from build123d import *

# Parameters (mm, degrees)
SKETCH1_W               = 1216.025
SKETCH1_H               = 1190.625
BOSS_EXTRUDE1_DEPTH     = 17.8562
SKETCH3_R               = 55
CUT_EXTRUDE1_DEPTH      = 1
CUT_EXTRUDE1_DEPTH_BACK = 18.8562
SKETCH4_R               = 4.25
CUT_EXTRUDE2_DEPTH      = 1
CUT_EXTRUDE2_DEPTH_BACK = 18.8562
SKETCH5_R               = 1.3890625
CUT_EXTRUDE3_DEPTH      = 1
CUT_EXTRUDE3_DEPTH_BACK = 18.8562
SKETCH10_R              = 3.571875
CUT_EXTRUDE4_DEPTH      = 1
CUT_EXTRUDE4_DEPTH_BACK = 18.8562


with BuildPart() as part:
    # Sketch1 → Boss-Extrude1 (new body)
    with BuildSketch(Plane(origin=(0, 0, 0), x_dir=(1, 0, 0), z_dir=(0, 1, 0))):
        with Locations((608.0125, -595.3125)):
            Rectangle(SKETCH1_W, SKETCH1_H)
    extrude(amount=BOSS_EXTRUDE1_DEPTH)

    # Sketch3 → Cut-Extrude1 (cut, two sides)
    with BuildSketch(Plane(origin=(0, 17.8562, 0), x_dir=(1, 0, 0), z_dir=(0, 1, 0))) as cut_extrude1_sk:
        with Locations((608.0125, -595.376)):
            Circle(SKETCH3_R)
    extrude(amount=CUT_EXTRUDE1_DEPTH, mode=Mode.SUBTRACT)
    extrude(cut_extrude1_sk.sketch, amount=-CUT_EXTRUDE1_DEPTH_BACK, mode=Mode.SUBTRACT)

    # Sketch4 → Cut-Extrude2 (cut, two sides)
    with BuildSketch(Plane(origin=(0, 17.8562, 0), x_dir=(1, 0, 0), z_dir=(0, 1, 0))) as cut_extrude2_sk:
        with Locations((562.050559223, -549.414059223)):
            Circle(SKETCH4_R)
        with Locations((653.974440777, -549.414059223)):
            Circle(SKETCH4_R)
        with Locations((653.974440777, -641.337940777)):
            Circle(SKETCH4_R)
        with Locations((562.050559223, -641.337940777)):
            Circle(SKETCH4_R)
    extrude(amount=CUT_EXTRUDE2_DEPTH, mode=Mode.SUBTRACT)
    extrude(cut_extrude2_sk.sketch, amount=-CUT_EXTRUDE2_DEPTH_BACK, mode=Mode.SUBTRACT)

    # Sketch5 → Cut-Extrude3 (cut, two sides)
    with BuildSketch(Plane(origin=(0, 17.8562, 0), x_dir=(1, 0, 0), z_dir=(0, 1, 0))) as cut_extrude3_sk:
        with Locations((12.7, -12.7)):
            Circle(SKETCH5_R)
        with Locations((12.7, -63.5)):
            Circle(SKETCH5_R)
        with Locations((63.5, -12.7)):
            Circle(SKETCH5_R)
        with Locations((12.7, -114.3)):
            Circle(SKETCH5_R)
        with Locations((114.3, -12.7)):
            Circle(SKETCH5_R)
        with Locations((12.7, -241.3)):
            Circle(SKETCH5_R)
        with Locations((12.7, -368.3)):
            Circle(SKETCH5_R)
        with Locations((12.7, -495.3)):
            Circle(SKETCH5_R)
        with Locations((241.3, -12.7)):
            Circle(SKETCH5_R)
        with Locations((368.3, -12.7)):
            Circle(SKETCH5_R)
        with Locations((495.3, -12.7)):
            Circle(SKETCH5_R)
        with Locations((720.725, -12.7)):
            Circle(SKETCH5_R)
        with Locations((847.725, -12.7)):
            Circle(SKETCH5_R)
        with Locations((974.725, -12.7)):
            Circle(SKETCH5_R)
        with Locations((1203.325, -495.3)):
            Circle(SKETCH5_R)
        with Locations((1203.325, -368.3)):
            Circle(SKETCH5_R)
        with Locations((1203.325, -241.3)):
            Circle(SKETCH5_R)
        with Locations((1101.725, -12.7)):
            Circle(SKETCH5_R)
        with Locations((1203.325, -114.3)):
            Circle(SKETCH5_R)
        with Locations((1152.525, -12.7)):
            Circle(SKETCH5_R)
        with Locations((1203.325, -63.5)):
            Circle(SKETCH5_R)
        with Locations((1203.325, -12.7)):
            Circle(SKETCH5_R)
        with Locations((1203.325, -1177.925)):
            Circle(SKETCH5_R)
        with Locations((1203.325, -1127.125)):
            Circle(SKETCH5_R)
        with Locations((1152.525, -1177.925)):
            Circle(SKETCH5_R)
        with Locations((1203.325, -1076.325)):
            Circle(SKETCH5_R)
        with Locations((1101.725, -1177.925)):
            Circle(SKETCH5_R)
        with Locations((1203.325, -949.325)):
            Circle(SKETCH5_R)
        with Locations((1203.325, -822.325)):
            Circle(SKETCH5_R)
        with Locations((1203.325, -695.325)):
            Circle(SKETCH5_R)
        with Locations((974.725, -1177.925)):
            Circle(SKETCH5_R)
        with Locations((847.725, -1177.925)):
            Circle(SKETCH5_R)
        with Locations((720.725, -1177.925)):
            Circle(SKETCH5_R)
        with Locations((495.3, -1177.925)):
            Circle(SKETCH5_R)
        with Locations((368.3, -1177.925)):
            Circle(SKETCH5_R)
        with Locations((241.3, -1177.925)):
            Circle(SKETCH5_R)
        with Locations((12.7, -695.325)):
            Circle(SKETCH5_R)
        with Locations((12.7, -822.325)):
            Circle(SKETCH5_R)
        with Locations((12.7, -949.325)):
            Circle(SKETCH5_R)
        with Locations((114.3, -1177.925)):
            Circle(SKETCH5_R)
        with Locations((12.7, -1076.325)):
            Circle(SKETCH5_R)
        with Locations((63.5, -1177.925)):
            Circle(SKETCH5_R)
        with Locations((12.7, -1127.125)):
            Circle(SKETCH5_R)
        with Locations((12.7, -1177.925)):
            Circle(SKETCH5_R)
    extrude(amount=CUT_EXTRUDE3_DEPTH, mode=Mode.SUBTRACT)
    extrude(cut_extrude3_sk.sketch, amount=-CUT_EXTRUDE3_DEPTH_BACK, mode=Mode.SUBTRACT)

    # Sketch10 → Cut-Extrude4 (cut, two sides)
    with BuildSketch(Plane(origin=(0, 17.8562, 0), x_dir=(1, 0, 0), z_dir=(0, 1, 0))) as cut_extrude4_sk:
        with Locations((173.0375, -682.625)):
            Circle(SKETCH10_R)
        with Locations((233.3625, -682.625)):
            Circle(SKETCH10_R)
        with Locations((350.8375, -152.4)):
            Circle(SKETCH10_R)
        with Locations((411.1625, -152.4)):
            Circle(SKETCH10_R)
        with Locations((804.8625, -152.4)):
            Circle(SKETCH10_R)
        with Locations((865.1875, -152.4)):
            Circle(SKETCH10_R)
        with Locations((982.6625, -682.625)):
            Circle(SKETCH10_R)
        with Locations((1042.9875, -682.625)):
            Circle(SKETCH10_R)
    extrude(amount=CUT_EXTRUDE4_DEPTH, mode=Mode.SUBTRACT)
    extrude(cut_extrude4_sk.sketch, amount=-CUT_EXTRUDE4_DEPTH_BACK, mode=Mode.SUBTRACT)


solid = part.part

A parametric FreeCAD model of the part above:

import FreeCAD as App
import Part
import Sketcher
Q = App.Units.Quantity

doc = App.newDocument("Part")
body = doc.addObject("PartDesign::Body", "Body")

sketch1 = body.newObject("Sketcher::SketchObject", "Sketch")
sketch1.AttachmentSupport = (doc.getObject("XZ_Plane"), [""])
sketch1.MapMode = "FlatFace"
sketch1.addGeometry([
    Part.LineSegment(App.Vector(0, 0, 0), App.Vector(0, 1191, 0)),
    Part.LineSegment(App.Vector(0, 1191, 0), App.Vector(1216, 1191, 0)),
    Part.LineSegment(App.Vector(1216, 1191, 0), App.Vector(1216, 0, 0)),
    Part.LineSegment(App.Vector(1216, 0, 0), App.Vector(0, 0, 0)),
], False)
sketch1.addConstraint([
    Sketcher.Constraint("Coincident", 0, 2, 1, 1),
    Sketcher.Constraint("Coincident", 1, 2, 2, 1),
    Sketcher.Constraint("Coincident", 2, 2, 3, 1),
    Sketcher.Constraint("Coincident", 3, 2, 0, 1),
    Sketcher.Constraint("Vertical", 0),
    Sketcher.Constraint("Horizontal", 1),
    Sketcher.Constraint("Vertical", 2),
    Sketcher.Constraint("Horizontal", 3),
    Sketcher.Constraint("Coincident", 3, 2, -1, 1),
    Sketcher.Constraint("DistanceX", 1, 1, 1, 2, Q("47.875 in")),
    Sketcher.Constraint("DistanceY", 0, 1, 0, 2, Q("46.875 in")),
])
pad1 = body.newObject("PartDesign::Pad", "Pad")
pad1.Profile = sketch1
pad1.Length = Q("0.703 in")
pad1.Reversed = True

sketch2 = body.newObject("Sketcher::SketchObject", "Sketch001")
sketch2.AttachmentSupport = (doc.getObject("XZ_Plane"), [""])
sketch2.MapMode = "FlatFace"
sketch2.AttachmentOffset = App.Placement(App.Vector(0, 0, -0.703 * 25.4), App.Rotation())
sketch2.addGeometry(Part.Circle(App.Vector(608, 595, 0), App.Vector(0, 0, 1), 55), False)
sketch2.addConstraint([
    Sketcher.Constraint("Diameter", 0, 110.0),
    Sketcher.Constraint("DistanceY", -1, 1, 0, 3, Q("23.44 in")),
    Sketcher.Constraint("DistanceX", -1, 1, 0, 3, Q("23.9375 in")),
])
pocket1 = body.newObject("PartDesign::Pocket", "Pocket")
pocket1.Profile = sketch2
pocket1.Type = "ThroughAll"
pocket1.Midplane = True

sketch3 = body.newObject("Sketcher::SketchObject", "Sketch002")
sketch3.AttachmentSupport = (doc.getObject("XZ_Plane"), [""])
sketch3.MapMode = "FlatFace"
sketch3.AttachmentOffset = App.Placement(App.Vector(0, 0, -0.703 * 25.4), App.Rotation())
sketch3.addGeometry([
    Part.Circle(App.Vector(562.1, 549.4, 0), App.Vector(0, 0, 1), 4.2),
    Part.Circle(App.Vector(654, 549.4, 0), App.Vector(0, 0, 1), 4.2),
    Part.Circle(App.Vector(654, 641.3, 0), App.Vector(0, 0, 1), 4.2),
    Part.Circle(App.Vector(562.1, 641.3, 0), App.Vector(0, 0, 1), 4.2),
], False)
sketch3.addConstraint([
    Sketcher.Constraint("Equal", 0, 1),
    Sketcher.Constraint("Equal", 1, 2),
    Sketcher.Constraint("Equal", 2, 3),
    Sketcher.Constraint("Horizontal", 0, 3, 1, 3),
    Sketcher.Constraint("Horizontal", 2, 3, 3, 3),
    Sketcher.Constraint("Vertical", 1, 3, 2, 3),
    Sketcher.Constraint("Vertical", 0, 3, 3, 3),
    Sketcher.Constraint("Diameter", 0, 8.5),
    Sketcher.Constraint("DistanceX", -1, 1, 0, 3, 562.050559),
    Sketcher.Constraint("DistanceY", -1, 1, 0, 3, 549.414059),
    Sketcher.Constraint("DistanceX", -1, 1, 1, 3, 653.974441),
    Sketcher.Constraint("DistanceY", -1, 1, 2, 3, 641.337941),
])
pocket2 = body.newObject("PartDesign::Pocket", "Pocket001")
pocket2.Profile = sketch3
pocket2.Type = "ThroughAll"
pocket2.Midplane = True

sketch4 = body.newObject("Sketcher::SketchObject", "Sketch003")
sketch4.AttachmentSupport = (doc.getObject("XZ_Plane"), [""])
sketch4.MapMode = "FlatFace"
sketch4.AttachmentOffset = App.Placement(App.Vector(0, 0, -0.703 * 25.4), App.Rotation())
sketch4.addGeometry([
    Part.Circle(App.Vector(12.7, 12.7, 0), App.Vector(0, 0, 1), 1.4),
    Part.Circle(App.Vector(12.7, 63.5, 0), App.Vector(0, 0, 1), 1.4),
    Part.Circle(App.Vector(63.5, 12.7, 0), App.Vector(0, 0, 1), 1.4),
    Part.Circle(App.Vector(12.7, 114.3, 0), App.Vector(0, 0, 1), 1.4),
    Part.Circle(App.Vector(114.3, 12.7, 0), App.Vector(0, 0, 1), 1.4),
    Part.Circle(App.Vector(12.7, 241.3, 0), App.Vector(0, 0, 1), 1.4),
    Part.Circle(App.Vector(12.7, 368.3, 0), App.Vector(0, 0, 1), 1.4),
    Part.Circle(App.Vector(12.7, 495.3, 0), App.Vector(0, 0, 1), 1.4),
    Part.Circle(App.Vector(241.3, 12.7, 0), App.Vector(0, 0, 1), 1.4),
    Part.Circle(App.Vector(368.3, 12.7, 0), App.Vector(0, 0, 1), 1.4),
    Part.Circle(App.Vector(495.3, 12.7, 0), App.Vector(0, 0, 1), 1.4),
    Part.Circle(App.Vector(720.7, 12.7, 0), App.Vector(0, 0, 1), 1.4),
    Part.Circle(App.Vector(847.7, 12.7, 0), App.Vector(0, 0, 1), 1.4),
    Part.Circle(App.Vector(974.7, 12.7, 0), App.Vector(0, 0, 1), 1.4),
    Part.Circle(App.Vector(1203.3, 495.3, 0), App.Vector(0, 0, 1), 1.4),
    Part.Circle(App.Vector(1203.3, 368.3, 0), App.Vector(0, 0, 1), 1.4),
    Part.Circle(App.Vector(1203.3, 241.3, 0), App.Vector(0, 0, 1), 1.4),
    Part.Circle(App.Vector(1101.7, 12.7, 0), App.Vector(0, 0, 1), 1.4),
    Part.Circle(App.Vector(1203.3, 114.3, 0), App.Vector(0, 0, 1), 1.4),
    Part.Circle(App.Vector(1152.5, 12.7, 0), App.Vector(0, 0, 1), 1.4),
    Part.Circle(App.Vector(1203.3, 63.5, 0), App.Vector(0, 0, 1), 1.4),
    Part.Circle(App.Vector(1203.3, 12.7, 0), App.Vector(0, 0, 1), 1.4),
    Part.Circle(App.Vector(1203.3, 1177.9, 0), App.Vector(0, 0, 1), 1.4),
    Part.Circle(App.Vector(1203.3, 1127.1, 0), App.Vector(0, 0, 1), 1.4),
    Part.Circle(App.Vector(1152.5, 1177.9, 0), App.Vector(0, 0, 1), 1.4),
    Part.Circle(App.Vector(1203.3, 1076.3, 0), App.Vector(0, 0, 1), 1.4),
    Part.Circle(App.Vector(1101.7, 1177.9, 0), App.Vector(0, 0, 1), 1.4),
    Part.Circle(App.Vector(1203.3, 949.3, 0), App.Vector(0, 0, 1), 1.4),
    Part.Circle(App.Vector(1203.3, 822.3, 0), App.Vector(0, 0, 1), 1.4),
    Part.Circle(App.Vector(1203.3, 695.3, 0), App.Vector(0, 0, 1), 1.4),
    Part.Circle(App.Vector(974.7, 1177.9, 0), App.Vector(0, 0, 1), 1.4),
    Part.Circle(App.Vector(847.7, 1177.9, 0), App.Vector(0, 0, 1), 1.4),
    Part.Circle(App.Vector(720.7, 1177.9, 0), App.Vector(0, 0, 1), 1.4),
    Part.Circle(App.Vector(495.3, 1177.9, 0), App.Vector(0, 0, 1), 1.4),
    Part.Circle(App.Vector(368.3, 1177.9, 0), App.Vector(0, 0, 1), 1.4),
    Part.Circle(App.Vector(241.3, 1177.9, 0), App.Vector(0, 0, 1), 1.4),
    Part.Circle(App.Vector(12.7, 695.3, 0), App.Vector(0, 0, 1), 1.4),
    Part.Circle(App.Vector(12.7, 822.3, 0), App.Vector(0, 0, 1), 1.4),
    Part.Circle(App.Vector(12.7, 949.3, 0), App.Vector(0, 0, 1), 1.4),
    Part.Circle(App.Vector(114.3, 1177.9, 0), App.Vector(0, 0, 1), 1.4),
    Part.Circle(App.Vector(12.7, 1076.3, 0), App.Vector(0, 0, 1), 1.4),
    Part.Circle(App.Vector(63.5, 1177.9, 0), App.Vector(0, 0, 1), 1.4),
    Part.Circle(App.Vector(12.7, 1127.1, 0), App.Vector(0, 0, 1), 1.4),
    Part.Circle(App.Vector(12.7, 1177.9, 0), App.Vector(0, 0, 1), 1.4),
], False)
sketch4.addConstraint([
    Sketcher.Constraint("Equal", 0, 1),
    Sketcher.Constraint("Equal", 1, 2),
    Sketcher.Constraint("Equal", 2, 3),
    Sketcher.Constraint("Equal", 3, 4),
    Sketcher.Constraint("Equal", 4, 5),
    Sketcher.Constraint("Equal", 5, 6),
    Sketcher.Constraint("Equal", 6, 7),
    Sketcher.Constraint("Equal", 7, 8),
    Sketcher.Constraint("Equal", 8, 9),
    Sketcher.Constraint("Equal", 9, 10),
    Sketcher.Constraint("Equal", 10, 11),
    Sketcher.Constraint("Equal", 11, 12),
    Sketcher.Constraint("Equal", 12, 13),
    Sketcher.Constraint("Equal", 13, 14),
    Sketcher.Constraint("Equal", 14, 15),
    Sketcher.Constraint("Equal", 15, 16),
    Sketcher.Constraint("Equal", 16, 17),
    Sketcher.Constraint("Equal", 17, 18),
    Sketcher.Constraint("Equal", 18, 19),
    Sketcher.Constraint("Equal", 19, 20),
    Sketcher.Constraint("Equal", 20, 21),
    Sketcher.Constraint("Equal", 21, 22),
    Sketcher.Constraint("Equal", 22, 23),
    Sketcher.Constraint("Equal", 23, 24),
    Sketcher.Constraint("Equal", 24, 25),
    Sketcher.Constraint("Equal", 25, 26),
    Sketcher.Constraint("Equal", 26, 27),
    Sketcher.Constraint("Equal", 27, 28),
    Sketcher.Constraint("Equal", 28, 29),
    Sketcher.Constraint("Equal", 29, 30),
    Sketcher.Constraint("Equal", 30, 31),
    Sketcher.Constraint("Equal", 31, 32),
    Sketcher.Constraint("Equal", 32, 33),
    Sketcher.Constraint("Equal", 33, 34),
    Sketcher.Constraint("Equal", 34, 35),
    Sketcher.Constraint("Equal", 35, 36),
    Sketcher.Constraint("Equal", 36, 37),
    Sketcher.Constraint("Equal", 37, 38),
    Sketcher.Constraint("Equal", 38, 39),
    Sketcher.Constraint("Equal", 39, 40),
    Sketcher.Constraint("Equal", 40, 41),
    Sketcher.Constraint("Equal", 41, 42),
    Sketcher.Constraint("Equal", 42, 43),
    Sketcher.Constraint("Horizontal", 0, 3, 2, 3),
    Sketcher.Constraint("Horizontal", 2, 3, 4, 3),
    Sketcher.Constraint("Horizontal", 4, 3, 8, 3),
    Sketcher.Constraint("Horizontal", 8, 3, 9, 3),
    Sketcher.Constraint("Horizontal", 9, 3, 10, 3),
    Sketcher.Constraint("Horizontal", 10, 3, 11, 3),
    Sketcher.Constraint("Horizontal", 11, 3, 12, 3),
    Sketcher.Constraint("Horizontal", 12, 3, 13, 3),
    Sketcher.Constraint("Horizontal", 7, 3, 14, 3),
    Sketcher.Constraint("Horizontal", 6, 3, 15, 3),
    Sketcher.Constraint("Horizontal", 5, 3, 16, 3),
    Sketcher.Constraint("Horizontal", 13, 3, 17, 3),
    Sketcher.Constraint("Horizontal", 3, 3, 18, 3),
    Sketcher.Constraint("Horizontal", 17, 3, 19, 3),
    Sketcher.Constraint("Horizontal", 1, 3, 20, 3),
    Sketcher.Constraint("Horizontal", 19, 3, 21, 3),
    Sketcher.Constraint("Horizontal", 22, 3, 24, 3),
    Sketcher.Constraint("Horizontal", 24, 3, 26, 3),
    Sketcher.Constraint("Horizontal", 26, 3, 30, 3),
    Sketcher.Constraint("Horizontal", 30, 3, 31, 3),
    Sketcher.Constraint("Horizontal", 31, 3, 32, 3),
    Sketcher.Constraint("Horizontal", 32, 3, 33, 3),
    Sketcher.Constraint("Horizontal", 33, 3, 34, 3),
    Sketcher.Constraint("Horizontal", 34, 3, 35, 3),
    Sketcher.Constraint("Horizontal", 29, 3, 36, 3),
    Sketcher.Constraint("Horizontal", 28, 3, 37, 3),
    Sketcher.Constraint("Horizontal", 27, 3, 38, 3),
    Sketcher.Constraint("Horizontal", 35, 3, 39, 3),
    Sketcher.Constraint("Horizontal", 25, 3, 40, 3),
    Sketcher.Constraint("Horizontal", 39, 3, 41, 3),
    Sketcher.Constraint("Horizontal", 23, 3, 42, 3),
    Sketcher.Constraint("Horizontal", 41, 3, 43, 3),
    Sketcher.Constraint("Vertical", 0, 3, 1, 3),
    Sketcher.Constraint("Vertical", 1, 3, 3, 3),
    Sketcher.Constraint("Vertical", 3, 3, 5, 3),
    Sketcher.Constraint("Vertical", 5, 3, 6, 3),
    Sketcher.Constraint("Vertical", 6, 3, 7, 3),
    Sketcher.Constraint("Vertical", 14, 3, 15, 3),
    Sketcher.Constraint("Vertical", 15, 3, 16, 3),
    Sketcher.Constraint("Vertical", 16, 3, 18, 3),
    Sketcher.Constraint("Vertical", 18, 3, 20, 3),
    Sketcher.Constraint("Vertical", 20, 3, 21, 3),
    Sketcher.Constraint("Vertical", 21, 3, 22, 3),
    Sketcher.Constraint("Vertical", 22, 3, 23, 3),
    Sketcher.Constraint("Vertical", 19, 3, 24, 3),
    Sketcher.Constraint("Vertical", 23, 3, 25, 3),
    Sketcher.Constraint("Vertical", 17, 3, 26, 3),
    Sketcher.Constraint("Vertical", 25, 3, 27, 3),
    Sketcher.Constraint("Vertical", 27, 3, 28, 3),
    Sketcher.Constraint("Vertical", 28, 3, 29, 3),
    Sketcher.Constraint("Vertical", 13, 3, 30, 3),
    Sketcher.Constraint("Vertical", 12, 3, 31, 3),
    Sketcher.Constraint("Vertical", 11, 3, 32, 3),
    Sketcher.Constraint("Vertical", 10, 3, 33, 3),
    Sketcher.Constraint("Vertical", 9, 3, 34, 3),
    Sketcher.Constraint("Vertical", 8, 3, 35, 3),
    Sketcher.Constraint("Vertical", 7, 3, 36, 3),
    Sketcher.Constraint("Vertical", 36, 3, 37, 3),
    Sketcher.Constraint("Vertical", 37, 3, 38, 3),
    Sketcher.Constraint("Vertical", 4, 3, 39, 3),
    Sketcher.Constraint("Vertical", 38, 3, 40, 3),
    Sketcher.Constraint("Vertical", 2, 3, 41, 3),
    Sketcher.Constraint("Vertical", 40, 3, 42, 3),
    Sketcher.Constraint("Vertical", 42, 3, 43, 3),
    Sketcher.Constraint("Diameter", 0, Q("0.109375 in")),
    Sketcher.Constraint("DistanceY", 0, 3, 1, 3, Q("2 in")),
    Sketcher.Constraint("DistanceX", 0, 3, 2, 3, Q("2 in")),
    Sketcher.Constraint("DistanceY", 1, 3, 3, 3, Q("2 in")),
    Sketcher.Constraint("DistanceX", 2, 3, 4, 3, Q("2 in")),
    Sketcher.Constraint("DistanceY", 3, 3, 5, 3, Q("5 in")),
    Sketcher.Constraint("DistanceY", 5, 3, 6, 3, Q("5 in")),
    Sketcher.Constraint("DistanceY", 6, 3, 7, 3, Q("5 in")),
    Sketcher.Constraint("DistanceX", 4, 3, 8, 3, Q("5 in")),
    Sketcher.Constraint("DistanceX", 8, 3, 9, 3, Q("5 in")),
    Sketcher.Constraint("DistanceX", 9, 3, 10, 3, Q("5 in")),
    Sketcher.Constraint("DistanceX", 11, 3, 12, 3, Q("5 in")),
    Sketcher.Constraint("DistanceX", 12, 3, 13, 3, Q("5 in")),
    Sketcher.Constraint("DistanceX", 13, 3, 14, 3, Q("9 in")),
    Sketcher.Constraint("DistanceX", 13, 3, 17, 3, Q("5 in")),
    Sketcher.Constraint("DistanceX", 17, 3, 19, 3, Q("2 in")),
    Sketcher.Constraint("DistanceY", 23, 3, 22, 3, Q("2 in")),
    Sketcher.Constraint("DistanceY", 25, 3, 23, 3, Q("2 in")),
    Sketcher.Constraint("DistanceY", 27, 3, 25, 3, Q("5 in")),
    Sketcher.Constraint("DistanceY", 28, 3, 27, 3, Q("5 in")),
    Sketcher.Constraint("DistanceY", 29, 3, 28, 3, Q("5 in")),
    Sketcher.Constraint("DistanceX", -1, 1, 0, 3, Q("0.5 in")),
    Sketcher.Constraint("DistanceY", -1, 1, 0, 3, Q("0.5 in")),
    Sketcher.Constraint("DistanceX", -1, 1, 11, 3, Q("28.375 in")),
    Sketcher.Constraint("DistanceY", -1, 1, 22, 3, Q("46.375 in")),
])
pocket3 = body.newObject("PartDesign::Pocket", "Pocket002")
pocket3.Profile = sketch4
pocket3.Type = "ThroughAll"
pocket3.Midplane = True

sketch5 = body.newObject("Sketcher::SketchObject", "Sketch004")
sketch5.AttachmentSupport = (doc.getObject("XZ_Plane"), [""])
sketch5.MapMode = "FlatFace"
sketch5.AttachmentOffset = App.Placement(App.Vector(0, 0, -0.703 * 25.4), App.Rotation())
sketch5.addGeometry([
    Part.Circle(App.Vector(173, 682.6, 0), App.Vector(0, 0, 1), 3.6),
    Part.Circle(App.Vector(233.4, 682.6, 0), App.Vector(0, 0, 1), 3.6),
    Part.Circle(App.Vector(350.8, 152.4, 0), App.Vector(0, 0, 1), 3.6),
    Part.Circle(App.Vector(411.2, 152.4, 0), App.Vector(0, 0, 1), 3.6),
    Part.Circle(App.Vector(804.9, 152.4, 0), App.Vector(0, 0, 1), 3.6),
    Part.Circle(App.Vector(865.2, 152.4, 0), App.Vector(0, 0, 1), 3.6),
    Part.Circle(App.Vector(982.7, 682.6, 0), App.Vector(0, 0, 1), 3.6),
    Part.Circle(App.Vector(1043, 682.6, 0), App.Vector(0, 0, 1), 3.6),
], False)
sketch5.addConstraint([
    Sketcher.Constraint("Equal", 0, 1),
    Sketcher.Constraint("Equal", 1, 2),
    Sketcher.Constraint("Equal", 2, 3),
    Sketcher.Constraint("Equal", 3, 4),
    Sketcher.Constraint("Equal", 4, 5),
    Sketcher.Constraint("Equal", 5, 6),
    Sketcher.Constraint("Equal", 6, 7),
    Sketcher.Constraint("Horizontal", 0, 3, 1, 3),
    Sketcher.Constraint("Horizontal", 2, 3, 3, 3),
    Sketcher.Constraint("Horizontal", 3, 3, 4, 3),
    Sketcher.Constraint("Horizontal", 4, 3, 5, 3),
    Sketcher.Constraint("Horizontal", 1, 3, 6, 3),
    Sketcher.Constraint("Horizontal", 6, 3, 7, 3),
    Sketcher.Constraint("Diameter", 0, Q("0.28125 in")),
    Sketcher.Constraint("DistanceY", -1, 1, 2, 3, Q("6 in")),
    Sketcher.Constraint("DistanceX", 0, 3, 2, 3, Q("7 in")),
    Sketcher.Constraint("DistanceX", 1, 3, 3, 3, Q("7 in")),
    Sketcher.Constraint("DistanceX", 4, 3, 6, 3, Q("7 in")),
    Sketcher.Constraint("DistanceX", 5, 3, 7, 3, Q("7 in")),
    Sketcher.Constraint("DistanceX", 3, 3, 4, 3, Q("15.5 in")),
    Sketcher.Constraint("DistanceX", 2, 3, 5, 3, Q("20.25 in")),
    Sketcher.Constraint("DistanceX", -1, 1, 0, 3, Q("6.8125 in")),
    Sketcher.Constraint("DistanceY", -1, 1, 0, 3, Q("26.875 in")),
    Sketcher.Constraint("DistanceX", -1, 1, 1, 3, Q("9.1875 in")),
])
pocket4 = body.newObject("PartDesign::Pocket", "Pocket003")
pocket4.Profile = sketch5
pocket4.Type = "ThroughAll"
pocket4.Midplane = True

doc.recompute()
